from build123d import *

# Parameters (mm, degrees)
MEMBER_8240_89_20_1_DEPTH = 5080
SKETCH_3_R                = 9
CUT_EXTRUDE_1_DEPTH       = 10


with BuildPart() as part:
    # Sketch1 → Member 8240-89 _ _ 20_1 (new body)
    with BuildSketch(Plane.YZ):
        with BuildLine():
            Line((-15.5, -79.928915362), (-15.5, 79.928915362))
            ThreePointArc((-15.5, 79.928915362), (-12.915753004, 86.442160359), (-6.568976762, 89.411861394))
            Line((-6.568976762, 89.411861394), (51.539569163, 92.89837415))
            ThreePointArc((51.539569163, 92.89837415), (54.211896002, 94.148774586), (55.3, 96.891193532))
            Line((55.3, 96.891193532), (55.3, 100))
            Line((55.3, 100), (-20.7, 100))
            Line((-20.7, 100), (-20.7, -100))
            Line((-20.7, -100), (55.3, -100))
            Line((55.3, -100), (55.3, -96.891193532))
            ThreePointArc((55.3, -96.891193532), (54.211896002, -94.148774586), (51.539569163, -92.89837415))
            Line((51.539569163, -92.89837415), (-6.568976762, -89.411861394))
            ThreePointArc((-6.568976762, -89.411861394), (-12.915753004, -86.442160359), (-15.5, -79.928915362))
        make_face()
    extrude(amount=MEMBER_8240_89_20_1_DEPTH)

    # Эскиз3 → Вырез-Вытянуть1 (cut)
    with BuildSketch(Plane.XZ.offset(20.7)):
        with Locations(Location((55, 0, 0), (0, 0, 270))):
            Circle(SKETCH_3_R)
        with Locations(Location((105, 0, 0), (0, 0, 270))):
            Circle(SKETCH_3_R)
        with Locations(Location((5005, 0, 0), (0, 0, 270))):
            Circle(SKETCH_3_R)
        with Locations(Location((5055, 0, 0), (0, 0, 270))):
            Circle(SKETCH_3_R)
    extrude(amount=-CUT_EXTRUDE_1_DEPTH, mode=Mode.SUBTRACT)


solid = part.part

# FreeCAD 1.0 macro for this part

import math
import FreeCAD as App
import Part
import Sketcher
from FreeCAD import Vector

doc = App.newDocument("Part")
body = doc.addObject("PartDesign::Body", "Body")

sketch1 = body.newObject("Sketcher::SketchObject", "Sketch")
sketch1.AttachmentSupport = (doc.getObject("YZ_Plane"), [""])
sketch1.MapMode = "FlatFace"
sketch1.addGeometry(Part.LineSegment(Vector(-15.5, -79.928915, 0), Vector(-15.5, 79.928915, 0)), False)
sketch1.addGeometry(Part.ArcOfCircle(Part.Circle(Vector(-6, 79.928915, 0), Vector(0, 0, 1), 9.5), math.radians(93.43363), math.radians(180)), False)
sketch1.addGeometry(Part.LineSegment(Vector(-6.568977, 89.411861, 0), Vector(51.539569, 92.898374, 0)), False)
sketch1.addGeometry(Part.ArcOfCircle(Part.Circle(Vector(51.3, 96.891194, 0), Vector(0, 0, 1), 4), math.radians(-86.56637), math.radians(0)), False)
sketch1.addGeometry(Part.LineSegment(Vector(55.3, 96.891194, 0), Vector(55.3, 100, 0)), False)
sketch1.addGeometry(Part.LineSegment(Vector(55.3, 100, 0), Vector(-20.7, 100, 0)), False)
sketch1.addGeometry(Part.LineSegment(Vector(-20.7, 100, 0), Vector(-20.7, -100, 0)), False)
sketch1.addGeometry(Part.LineSegment(Vector(-20.7, -100, 0), Vector(55.3, -100, 0)), False)
sketch1.addGeometry(Part.LineSegment(Vector(55.3, -100, 0), Vector(55.3, -96.891194, 0)), False)
sketch1.addGeometry(Part.ArcOfCircle(Part.Circle(Vector(51.3, -96.891194, 0), Vector(0, 0, 1), 4), math.radians(0), math.radians(86.56637)), False)
sketch1.addGeometry(Part.LineSegment(Vector(51.539569, -92.898374, 0), Vector(-6.568977, -89.411861, 0)), False)
sketch1.addGeometry(Part.ArcOfCircle(Part.Circle(Vector(-6, -79.928915, 0), Vector(0, 0, 1), 9.5), math.radians(180), math.radians(266.56637)), False)
sketch1.addConstraint(Sketcher.Constraint("Tangent", 0, 2, 1, 2))
sketch1.addConstraint(Sketcher.Constraint("Tangent", 1, 1, 2, 1))
sketch1.addConstraint(Sketcher.Constraint("Tangent", 2, 2, 3, 1))
sketch1.addConstraint(Sketcher.Constraint("Tangent", 3, 2, 4, 1))
sketch1.addConstraint(Sketcher.Constraint("Coincident", 4, 2, 5, 1))
sketch1.addConstraint(Sketcher.Constraint("Coincident", 5, 2, 6, 1))
sketch1.addConstraint(Sketcher.Constraint("Coincident", 6, 2, 7, 1))
sketch1.addConstraint(Sketcher.Constraint("Coincident", 7, 2, 8, 1))
sketch1.addConstraint(Sketcher.Constraint("Tangent", 8, 2, 9, 1))
sketch1.addConstraint(Sketcher.Constraint("Tangent", 9, 2, 10, 1))
sketch1.addConstraint(Sketcher.Constraint("Tangent", 10, 2, 11, 2))
sketch1.addConstraint(Sketcher.Constraint("Tangent", 11, 1, 0, 1))
sketch1.addConstraint(Sketcher.Constraint("Vertical", 0))
sketch1.addConstraint(Sketcher.Constraint("Vertical", 4))
sketch1.addConstraint(Sketcher.Constraint("Horizontal", 5))
sketch1.addConstraint(Sketcher.Constraint("Vertical", 6))
sketch1.addConstraint(Sketcher.Constraint("Horizontal", 7))
sketch1.addConstraint(Sketcher.Constraint("Vertical", 8))
sketch1.addConstraint(Sketcher.Constraint("Equal", 3, 9))
sketch1.addConstraint(Sketcher.Constraint("Equal", 1, 11))
sketch1.addConstraint(Sketcher.Constraint("Symmetric", 3, 3, 9, 3, -1))
sketch1.addConstraint(Sketcher.Constraint("Vertical", 2, 2, 9, 2))
sketch1.addConstraint(Sketcher.Constraint("Equal", 4, 8))
sketch1.addConstraint(Sketcher.Constraint("Radius", 3, 4.0))
sketch1.addConstraint(Sketcher.Constraint("Radius", 1, 9.5))
sketch1.addConstraint(Sketcher.Constraint("DistanceX", 5, 2, 5, 1, 76.0))
sketch1.addConstraint(Sketcher.Constraint("DistanceY", 6, 2, 6, 1, 200.0))
sketch1.addConstraint(Sketcher.Constraint("DistanceX", 1, 3, -1, 1, 6.0))
sketch1.addConstraint(Sketcher.Constraint("DistanceX", -1, 1, 3, 3, 51.3))
sketch1.addConstraint(Sketcher.Constraint("DistanceY", 0, 1, 0, 2, 159.857831))
sketch1.addConstraint(Sketcher.Constraint("DistanceY", 4, 1, 4, 2, 3.108806))
pad1 = body.newObject("PartDesign::Pad", "Pad")
pad1.Profile = sketch1
pad1.Length = 5080

sketch2 = body.newObject("Sketcher::SketchObject", "Sketch001")
sketch2.AttachmentSupport = (doc.getObject("XZ_Plane"), [""])
sketch2.MapMode = "FlatFace"
sketch2.AttachmentOffset = App.Placement(Vector(0, 0, 20.7), App.Rotation())
sketch2.addGeometry(Part.Circle(Vector(55, 0, 0), Vector(0, 0, 1), 9), False)
sketch2.addGeometry(Part.Circle(Vector(105, 0, 0), Vector(0, 0, 1), 9), False)
sketch2.addGeometry(Part.Circle(Vector(5005, 0, 0), Vector(0, 0, 1), 9), False)
sketch2.addGeometry(Part.Circle(Vector(5055, 0, 0), Vector(0, 0, 1), 9), False)
sketch2.addConstraint(Sketcher.Constraint("Equal", 0, 1))
sketch2.addConstraint(Sketcher.Constraint("Equal", 1, 2))
sketch2.addConstraint(Sketcher.Constraint("Equal", 2, 3))
sketch2.addConstraint(Sketcher.Constraint("PointOnObject", 0, 3, -1))
sketch2.addConstraint(Sketcher.Constraint("PointOnObject", 1, 3, -1))
sketch2.addConstraint(Sketcher.Constraint("PointOnObject", 2, 3, -1))
sketch2.addConstraint(Sketcher.Constraint("PointOnObject", 3, 3, -1))
sketch2.addConstraint(Sketcher.Constraint("Diameter", 0, 18.0))
sketch2.addConstraint(Sketcher.Constraint("DistanceX", -1, 1, 0, 3, 55.0))
sketch2.addConstraint(Sketcher.Constraint("DistanceX", -1, 1, 1, 3, 105.0))
sketch2.addConstraint(Sketcher.Constraint("DistanceX", -1, 1, 2, 3, 5005.0))
sketch2.addConstraint(Sketcher.Constraint("DistanceX", -1, 1, 3, 3, 5055.0))
pocket1 = body.newObject("PartDesign::Pocket", "Pocket")
pocket1.Profile = sketch2
pocket1.Length = 10

doc.recompute()
